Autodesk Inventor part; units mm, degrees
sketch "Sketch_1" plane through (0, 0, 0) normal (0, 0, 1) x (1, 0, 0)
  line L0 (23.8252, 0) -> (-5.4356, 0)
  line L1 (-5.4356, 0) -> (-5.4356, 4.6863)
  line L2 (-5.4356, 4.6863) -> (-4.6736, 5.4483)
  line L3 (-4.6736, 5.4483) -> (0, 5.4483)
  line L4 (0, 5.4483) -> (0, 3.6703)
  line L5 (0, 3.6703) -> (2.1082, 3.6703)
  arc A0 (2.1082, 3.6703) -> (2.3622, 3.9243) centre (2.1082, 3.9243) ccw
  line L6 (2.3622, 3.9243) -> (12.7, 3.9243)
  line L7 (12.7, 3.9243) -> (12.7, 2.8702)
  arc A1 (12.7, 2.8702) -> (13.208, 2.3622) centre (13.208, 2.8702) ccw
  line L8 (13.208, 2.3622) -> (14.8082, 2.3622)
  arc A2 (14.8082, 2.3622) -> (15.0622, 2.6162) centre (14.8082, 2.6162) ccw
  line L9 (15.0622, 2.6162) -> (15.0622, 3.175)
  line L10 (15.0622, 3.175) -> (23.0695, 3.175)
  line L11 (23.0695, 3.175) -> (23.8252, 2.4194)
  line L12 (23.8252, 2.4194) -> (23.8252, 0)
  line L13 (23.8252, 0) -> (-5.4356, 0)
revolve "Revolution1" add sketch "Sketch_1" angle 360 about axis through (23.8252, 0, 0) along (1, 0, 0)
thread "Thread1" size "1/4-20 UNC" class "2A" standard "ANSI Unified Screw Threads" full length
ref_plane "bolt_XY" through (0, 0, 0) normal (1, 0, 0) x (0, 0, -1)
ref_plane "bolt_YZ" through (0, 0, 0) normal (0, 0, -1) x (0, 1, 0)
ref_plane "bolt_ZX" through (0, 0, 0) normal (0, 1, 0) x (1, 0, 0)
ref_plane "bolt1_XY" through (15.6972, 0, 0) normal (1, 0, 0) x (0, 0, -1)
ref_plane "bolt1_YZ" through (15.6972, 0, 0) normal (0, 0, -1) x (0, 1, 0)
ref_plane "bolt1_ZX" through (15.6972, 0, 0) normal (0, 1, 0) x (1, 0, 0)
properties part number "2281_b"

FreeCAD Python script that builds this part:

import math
import FreeCAD as App
import Part
import Sketcher
from FreeCAD import Vector
Q = App.Units.Quantity

doc = App.newDocument("Part")
params = doc.addObject("Spreadsheet::Sheet", "Params")
for row, (alias, value) in enumerate([
    ("sketch1_radius", "0.01 in"),
    ("sketch1_radius2", "0.02 in"),
    ("sketch1_height", "0.07 in"),
    ("sketch1_width", "1.152 in"),
    ("sketch1_width2", "0.063 in"),
    ("revolution_angle", "360 deg"),
], start=1):
    params.set(f"A{row}", alias)
    params.set(f"B{row}", "=" + value)
    params.setAlias(f"B{row}", alias)

body = doc.addObject("PartDesign::Body", "Body")

sketch1 = body.newObject("Sketcher::SketchObject", "Sketch")
sketch1.AttachmentSupport = (doc.getObject("XY_Plane"), [""])
sketch1.MapMode = "FlatFace"
sketch1.addGeometry([
    Part.LineSegment(Vector(-5.4356, 0, 0), Vector(23.8252, 0, 0)),
    Part.LineSegment(Vector(23.8252, 0, 0), Vector(23.8252, 2.4194, 0)),
    Part.LineSegment(Vector(23.8252, 2.4194, 0), Vector(23.0695, 3.175, 0)),
    Part.LineSegment(Vector(23.0695, 3.175, 0), Vector(15.0622, 3.175, 0)),
    Part.LineSegment(Vector(15.0622, 3.175, 0), Vector(15.0622, 2.6162, 0)),
    Part.ArcOfCircle(Part.Circle(Vector(14.8082, 2.6162, 0), Vector(0, 0, 1), 0.254), math.radians(-90), math.radians(0)),
    Part.LineSegment(Vector(14.8082, 2.3622, 0), Vector(13.208, 2.3622, 0)),
    Part.ArcOfCircle(Part.Circle(Vector(13.208, 2.8702, 0), Vector(0, 0, 1), 0.508), math.radians(180), math.radians(270)),
    Part.LineSegment(Vector(12.7, 2.8702, 0), Vector(12.7, 3.9243, 0)),
    Part.LineSegment(Vector(12.7, 3.9243, 0), Vector(2.3622, 3.9243, 0)),
    Part.ArcOfCircle(Part.Circle(Vector(2.1082, 3.9243, 0), Vector(0, 0, 1), 0.254), math.radians(-90), math.radians(0)),
    Part.LineSegment(Vector(2.1082, 3.6703, 0), Vector(0, 3.6703, 0)),
    Part.LineSegment(Vector(0, 3.6703, 0), Vector(0, 5.4483, 0)),
    Part.LineSegment(Vector(0, 5.4483, 0), Vector(-4.6736, 5.4483, 0)),
    Part.LineSegment(Vector(-4.6736, 5.4483, 0), Vector(-5.4356, 4.6863, 0)),
    Part.LineSegment(Vector(-5.4356, 4.6863, 0), Vector(-5.4356, 0, 0)),
], False)
sketch1.addConstraint([
    Sketcher.Constraint("Coincident", 0, 2, 1, 1),
    Sketcher.Constraint("Coincident", 1, 2, 2, 1),
    Sketcher.Constraint("Coincident", 2, 2, 3, 1),
    Sketcher.Constraint("Coincident", 3, 2, 4, 1),
    Sketcher.Constraint("Tangent", 4, 2, 5, 2),
    Sketcher.Constraint("Tangent", 5, 1, 6, 1),
    Sketcher.Constraint("Tangent", 6, 2, 7, 2),
    Sketcher.Constraint("Tangent", 7, 1, 8, 1),
    Sketcher.Constraint("Coincident", 8, 2, 9, 1),
    Sketcher.Constraint("Coincident", 9, 2, 10, 2),
    Sketcher.Constraint("Tangent", 10, 1, 11, 1),
    Sketcher.Constraint("Coincident", 11, 2, 12, 1),
    Sketcher.Constraint("Coincident", 12, 2, 13, 1),
    Sketcher.Constraint("Coincident", 13, 2, 14, 1),
    Sketcher.Constraint("Coincident", 14, 2, 15, 1),
    Sketcher.Constraint("Coincident", 15, 2, 0, 1),
    Sketcher.Constraint("Horizontal", 0),
    Sketcher.Constraint("Vertical", 1),
    Sketcher.Constraint("Horizontal", 3),
    Sketcher.Constraint("Vertical", 4),
    Sketcher.Constraint("Horizontal", 6),
    Sketcher.Constraint("Vertical", 8),
    Sketcher.Constraint("Horizontal", 9),
    Sketcher.Constraint("Horizontal", 11),
    Sketcher.Constraint("Vertical", 12),
    Sketcher.Constraint("Horizontal", 13),
    Sketcher.Constraint("Vertical", 15),
    Sketcher.Constraint("Equal", 5, 10),
    Sketcher.Constraint("PointOnObject", 0, 2, -1),
    Sketcher.Constraint("PointOnObject", 11, 2, -2),
    Sketcher.Constraint("Perpendicular", 2, 14),
    Sketcher.Constraint("Horizontal", 10, 3, 8, 2),
    Sketcher.Constraint("Radius", 5, Q("0.01 in")),
    Sketcher.Constraint("Radius", 7, Q("0.02 in")),
    Sketcher.Constraint("Angle", 14, Q("-135 deg")),
    Sketcher.Constraint("DistanceY", 12, 1, 12, 2, Q("0.07 in")),
    Sketcher.Constraint("DistanceX", -1, 1, 7, 1, Q("0.5 in")),
    Sketcher.Constraint("DistanceX", 10, 3, 5, 3, Q("0.5 in")),
    Sketcher.Constraint("DistanceX", 0, 1, 0, 2, Q("1.152 in")),
    Sketcher.Constraint("DistanceX", 6, 2, 6, 1, Q("0.063 in")),
    Sketcher.Constraint("DistanceX", 13, 2, 13, 1, Q("0.184 in")),
    Sketcher.Constraint("DistanceY", 4, 2, 4, 1, Q("0.022 in")),
    Sketcher.Constraint("DistanceX", 14, 2, 13, 2, Q("0.03 in")),
    Sketcher.Constraint("DistanceY", 8, 1, 8, 2, Q("0.0415 in")),
    Sketcher.Constraint("DistanceY", 15, 2, 15, 1, Q("0.1845 in")),
    Sketcher.Constraint("DistanceX", 3, 2, 3, 1, 8.0073),
])
sketch1.setExpression("Constraints[32]", "Params.sketch1_radius")
sketch1.setExpression("Constraints[33]", "Params.sketch1_radius2")
sketch1.setExpression("Constraints[35]", "Params.sketch1_height")
sketch1.setExpression("Constraints[38]", "Params.sketch1_width")
sketch1.setExpression("Constraints[39]", "Params.sketch1_width2")
revolution = body.newObject("PartDesign::Revolution", "Revolution")
revolution.Profile = sketch1
revolution.ReferenceAxis = (sketch1, ["H_Axis"])
revolution.setExpression("Angle", "Params.revolution_angle")

doc.recompute()
